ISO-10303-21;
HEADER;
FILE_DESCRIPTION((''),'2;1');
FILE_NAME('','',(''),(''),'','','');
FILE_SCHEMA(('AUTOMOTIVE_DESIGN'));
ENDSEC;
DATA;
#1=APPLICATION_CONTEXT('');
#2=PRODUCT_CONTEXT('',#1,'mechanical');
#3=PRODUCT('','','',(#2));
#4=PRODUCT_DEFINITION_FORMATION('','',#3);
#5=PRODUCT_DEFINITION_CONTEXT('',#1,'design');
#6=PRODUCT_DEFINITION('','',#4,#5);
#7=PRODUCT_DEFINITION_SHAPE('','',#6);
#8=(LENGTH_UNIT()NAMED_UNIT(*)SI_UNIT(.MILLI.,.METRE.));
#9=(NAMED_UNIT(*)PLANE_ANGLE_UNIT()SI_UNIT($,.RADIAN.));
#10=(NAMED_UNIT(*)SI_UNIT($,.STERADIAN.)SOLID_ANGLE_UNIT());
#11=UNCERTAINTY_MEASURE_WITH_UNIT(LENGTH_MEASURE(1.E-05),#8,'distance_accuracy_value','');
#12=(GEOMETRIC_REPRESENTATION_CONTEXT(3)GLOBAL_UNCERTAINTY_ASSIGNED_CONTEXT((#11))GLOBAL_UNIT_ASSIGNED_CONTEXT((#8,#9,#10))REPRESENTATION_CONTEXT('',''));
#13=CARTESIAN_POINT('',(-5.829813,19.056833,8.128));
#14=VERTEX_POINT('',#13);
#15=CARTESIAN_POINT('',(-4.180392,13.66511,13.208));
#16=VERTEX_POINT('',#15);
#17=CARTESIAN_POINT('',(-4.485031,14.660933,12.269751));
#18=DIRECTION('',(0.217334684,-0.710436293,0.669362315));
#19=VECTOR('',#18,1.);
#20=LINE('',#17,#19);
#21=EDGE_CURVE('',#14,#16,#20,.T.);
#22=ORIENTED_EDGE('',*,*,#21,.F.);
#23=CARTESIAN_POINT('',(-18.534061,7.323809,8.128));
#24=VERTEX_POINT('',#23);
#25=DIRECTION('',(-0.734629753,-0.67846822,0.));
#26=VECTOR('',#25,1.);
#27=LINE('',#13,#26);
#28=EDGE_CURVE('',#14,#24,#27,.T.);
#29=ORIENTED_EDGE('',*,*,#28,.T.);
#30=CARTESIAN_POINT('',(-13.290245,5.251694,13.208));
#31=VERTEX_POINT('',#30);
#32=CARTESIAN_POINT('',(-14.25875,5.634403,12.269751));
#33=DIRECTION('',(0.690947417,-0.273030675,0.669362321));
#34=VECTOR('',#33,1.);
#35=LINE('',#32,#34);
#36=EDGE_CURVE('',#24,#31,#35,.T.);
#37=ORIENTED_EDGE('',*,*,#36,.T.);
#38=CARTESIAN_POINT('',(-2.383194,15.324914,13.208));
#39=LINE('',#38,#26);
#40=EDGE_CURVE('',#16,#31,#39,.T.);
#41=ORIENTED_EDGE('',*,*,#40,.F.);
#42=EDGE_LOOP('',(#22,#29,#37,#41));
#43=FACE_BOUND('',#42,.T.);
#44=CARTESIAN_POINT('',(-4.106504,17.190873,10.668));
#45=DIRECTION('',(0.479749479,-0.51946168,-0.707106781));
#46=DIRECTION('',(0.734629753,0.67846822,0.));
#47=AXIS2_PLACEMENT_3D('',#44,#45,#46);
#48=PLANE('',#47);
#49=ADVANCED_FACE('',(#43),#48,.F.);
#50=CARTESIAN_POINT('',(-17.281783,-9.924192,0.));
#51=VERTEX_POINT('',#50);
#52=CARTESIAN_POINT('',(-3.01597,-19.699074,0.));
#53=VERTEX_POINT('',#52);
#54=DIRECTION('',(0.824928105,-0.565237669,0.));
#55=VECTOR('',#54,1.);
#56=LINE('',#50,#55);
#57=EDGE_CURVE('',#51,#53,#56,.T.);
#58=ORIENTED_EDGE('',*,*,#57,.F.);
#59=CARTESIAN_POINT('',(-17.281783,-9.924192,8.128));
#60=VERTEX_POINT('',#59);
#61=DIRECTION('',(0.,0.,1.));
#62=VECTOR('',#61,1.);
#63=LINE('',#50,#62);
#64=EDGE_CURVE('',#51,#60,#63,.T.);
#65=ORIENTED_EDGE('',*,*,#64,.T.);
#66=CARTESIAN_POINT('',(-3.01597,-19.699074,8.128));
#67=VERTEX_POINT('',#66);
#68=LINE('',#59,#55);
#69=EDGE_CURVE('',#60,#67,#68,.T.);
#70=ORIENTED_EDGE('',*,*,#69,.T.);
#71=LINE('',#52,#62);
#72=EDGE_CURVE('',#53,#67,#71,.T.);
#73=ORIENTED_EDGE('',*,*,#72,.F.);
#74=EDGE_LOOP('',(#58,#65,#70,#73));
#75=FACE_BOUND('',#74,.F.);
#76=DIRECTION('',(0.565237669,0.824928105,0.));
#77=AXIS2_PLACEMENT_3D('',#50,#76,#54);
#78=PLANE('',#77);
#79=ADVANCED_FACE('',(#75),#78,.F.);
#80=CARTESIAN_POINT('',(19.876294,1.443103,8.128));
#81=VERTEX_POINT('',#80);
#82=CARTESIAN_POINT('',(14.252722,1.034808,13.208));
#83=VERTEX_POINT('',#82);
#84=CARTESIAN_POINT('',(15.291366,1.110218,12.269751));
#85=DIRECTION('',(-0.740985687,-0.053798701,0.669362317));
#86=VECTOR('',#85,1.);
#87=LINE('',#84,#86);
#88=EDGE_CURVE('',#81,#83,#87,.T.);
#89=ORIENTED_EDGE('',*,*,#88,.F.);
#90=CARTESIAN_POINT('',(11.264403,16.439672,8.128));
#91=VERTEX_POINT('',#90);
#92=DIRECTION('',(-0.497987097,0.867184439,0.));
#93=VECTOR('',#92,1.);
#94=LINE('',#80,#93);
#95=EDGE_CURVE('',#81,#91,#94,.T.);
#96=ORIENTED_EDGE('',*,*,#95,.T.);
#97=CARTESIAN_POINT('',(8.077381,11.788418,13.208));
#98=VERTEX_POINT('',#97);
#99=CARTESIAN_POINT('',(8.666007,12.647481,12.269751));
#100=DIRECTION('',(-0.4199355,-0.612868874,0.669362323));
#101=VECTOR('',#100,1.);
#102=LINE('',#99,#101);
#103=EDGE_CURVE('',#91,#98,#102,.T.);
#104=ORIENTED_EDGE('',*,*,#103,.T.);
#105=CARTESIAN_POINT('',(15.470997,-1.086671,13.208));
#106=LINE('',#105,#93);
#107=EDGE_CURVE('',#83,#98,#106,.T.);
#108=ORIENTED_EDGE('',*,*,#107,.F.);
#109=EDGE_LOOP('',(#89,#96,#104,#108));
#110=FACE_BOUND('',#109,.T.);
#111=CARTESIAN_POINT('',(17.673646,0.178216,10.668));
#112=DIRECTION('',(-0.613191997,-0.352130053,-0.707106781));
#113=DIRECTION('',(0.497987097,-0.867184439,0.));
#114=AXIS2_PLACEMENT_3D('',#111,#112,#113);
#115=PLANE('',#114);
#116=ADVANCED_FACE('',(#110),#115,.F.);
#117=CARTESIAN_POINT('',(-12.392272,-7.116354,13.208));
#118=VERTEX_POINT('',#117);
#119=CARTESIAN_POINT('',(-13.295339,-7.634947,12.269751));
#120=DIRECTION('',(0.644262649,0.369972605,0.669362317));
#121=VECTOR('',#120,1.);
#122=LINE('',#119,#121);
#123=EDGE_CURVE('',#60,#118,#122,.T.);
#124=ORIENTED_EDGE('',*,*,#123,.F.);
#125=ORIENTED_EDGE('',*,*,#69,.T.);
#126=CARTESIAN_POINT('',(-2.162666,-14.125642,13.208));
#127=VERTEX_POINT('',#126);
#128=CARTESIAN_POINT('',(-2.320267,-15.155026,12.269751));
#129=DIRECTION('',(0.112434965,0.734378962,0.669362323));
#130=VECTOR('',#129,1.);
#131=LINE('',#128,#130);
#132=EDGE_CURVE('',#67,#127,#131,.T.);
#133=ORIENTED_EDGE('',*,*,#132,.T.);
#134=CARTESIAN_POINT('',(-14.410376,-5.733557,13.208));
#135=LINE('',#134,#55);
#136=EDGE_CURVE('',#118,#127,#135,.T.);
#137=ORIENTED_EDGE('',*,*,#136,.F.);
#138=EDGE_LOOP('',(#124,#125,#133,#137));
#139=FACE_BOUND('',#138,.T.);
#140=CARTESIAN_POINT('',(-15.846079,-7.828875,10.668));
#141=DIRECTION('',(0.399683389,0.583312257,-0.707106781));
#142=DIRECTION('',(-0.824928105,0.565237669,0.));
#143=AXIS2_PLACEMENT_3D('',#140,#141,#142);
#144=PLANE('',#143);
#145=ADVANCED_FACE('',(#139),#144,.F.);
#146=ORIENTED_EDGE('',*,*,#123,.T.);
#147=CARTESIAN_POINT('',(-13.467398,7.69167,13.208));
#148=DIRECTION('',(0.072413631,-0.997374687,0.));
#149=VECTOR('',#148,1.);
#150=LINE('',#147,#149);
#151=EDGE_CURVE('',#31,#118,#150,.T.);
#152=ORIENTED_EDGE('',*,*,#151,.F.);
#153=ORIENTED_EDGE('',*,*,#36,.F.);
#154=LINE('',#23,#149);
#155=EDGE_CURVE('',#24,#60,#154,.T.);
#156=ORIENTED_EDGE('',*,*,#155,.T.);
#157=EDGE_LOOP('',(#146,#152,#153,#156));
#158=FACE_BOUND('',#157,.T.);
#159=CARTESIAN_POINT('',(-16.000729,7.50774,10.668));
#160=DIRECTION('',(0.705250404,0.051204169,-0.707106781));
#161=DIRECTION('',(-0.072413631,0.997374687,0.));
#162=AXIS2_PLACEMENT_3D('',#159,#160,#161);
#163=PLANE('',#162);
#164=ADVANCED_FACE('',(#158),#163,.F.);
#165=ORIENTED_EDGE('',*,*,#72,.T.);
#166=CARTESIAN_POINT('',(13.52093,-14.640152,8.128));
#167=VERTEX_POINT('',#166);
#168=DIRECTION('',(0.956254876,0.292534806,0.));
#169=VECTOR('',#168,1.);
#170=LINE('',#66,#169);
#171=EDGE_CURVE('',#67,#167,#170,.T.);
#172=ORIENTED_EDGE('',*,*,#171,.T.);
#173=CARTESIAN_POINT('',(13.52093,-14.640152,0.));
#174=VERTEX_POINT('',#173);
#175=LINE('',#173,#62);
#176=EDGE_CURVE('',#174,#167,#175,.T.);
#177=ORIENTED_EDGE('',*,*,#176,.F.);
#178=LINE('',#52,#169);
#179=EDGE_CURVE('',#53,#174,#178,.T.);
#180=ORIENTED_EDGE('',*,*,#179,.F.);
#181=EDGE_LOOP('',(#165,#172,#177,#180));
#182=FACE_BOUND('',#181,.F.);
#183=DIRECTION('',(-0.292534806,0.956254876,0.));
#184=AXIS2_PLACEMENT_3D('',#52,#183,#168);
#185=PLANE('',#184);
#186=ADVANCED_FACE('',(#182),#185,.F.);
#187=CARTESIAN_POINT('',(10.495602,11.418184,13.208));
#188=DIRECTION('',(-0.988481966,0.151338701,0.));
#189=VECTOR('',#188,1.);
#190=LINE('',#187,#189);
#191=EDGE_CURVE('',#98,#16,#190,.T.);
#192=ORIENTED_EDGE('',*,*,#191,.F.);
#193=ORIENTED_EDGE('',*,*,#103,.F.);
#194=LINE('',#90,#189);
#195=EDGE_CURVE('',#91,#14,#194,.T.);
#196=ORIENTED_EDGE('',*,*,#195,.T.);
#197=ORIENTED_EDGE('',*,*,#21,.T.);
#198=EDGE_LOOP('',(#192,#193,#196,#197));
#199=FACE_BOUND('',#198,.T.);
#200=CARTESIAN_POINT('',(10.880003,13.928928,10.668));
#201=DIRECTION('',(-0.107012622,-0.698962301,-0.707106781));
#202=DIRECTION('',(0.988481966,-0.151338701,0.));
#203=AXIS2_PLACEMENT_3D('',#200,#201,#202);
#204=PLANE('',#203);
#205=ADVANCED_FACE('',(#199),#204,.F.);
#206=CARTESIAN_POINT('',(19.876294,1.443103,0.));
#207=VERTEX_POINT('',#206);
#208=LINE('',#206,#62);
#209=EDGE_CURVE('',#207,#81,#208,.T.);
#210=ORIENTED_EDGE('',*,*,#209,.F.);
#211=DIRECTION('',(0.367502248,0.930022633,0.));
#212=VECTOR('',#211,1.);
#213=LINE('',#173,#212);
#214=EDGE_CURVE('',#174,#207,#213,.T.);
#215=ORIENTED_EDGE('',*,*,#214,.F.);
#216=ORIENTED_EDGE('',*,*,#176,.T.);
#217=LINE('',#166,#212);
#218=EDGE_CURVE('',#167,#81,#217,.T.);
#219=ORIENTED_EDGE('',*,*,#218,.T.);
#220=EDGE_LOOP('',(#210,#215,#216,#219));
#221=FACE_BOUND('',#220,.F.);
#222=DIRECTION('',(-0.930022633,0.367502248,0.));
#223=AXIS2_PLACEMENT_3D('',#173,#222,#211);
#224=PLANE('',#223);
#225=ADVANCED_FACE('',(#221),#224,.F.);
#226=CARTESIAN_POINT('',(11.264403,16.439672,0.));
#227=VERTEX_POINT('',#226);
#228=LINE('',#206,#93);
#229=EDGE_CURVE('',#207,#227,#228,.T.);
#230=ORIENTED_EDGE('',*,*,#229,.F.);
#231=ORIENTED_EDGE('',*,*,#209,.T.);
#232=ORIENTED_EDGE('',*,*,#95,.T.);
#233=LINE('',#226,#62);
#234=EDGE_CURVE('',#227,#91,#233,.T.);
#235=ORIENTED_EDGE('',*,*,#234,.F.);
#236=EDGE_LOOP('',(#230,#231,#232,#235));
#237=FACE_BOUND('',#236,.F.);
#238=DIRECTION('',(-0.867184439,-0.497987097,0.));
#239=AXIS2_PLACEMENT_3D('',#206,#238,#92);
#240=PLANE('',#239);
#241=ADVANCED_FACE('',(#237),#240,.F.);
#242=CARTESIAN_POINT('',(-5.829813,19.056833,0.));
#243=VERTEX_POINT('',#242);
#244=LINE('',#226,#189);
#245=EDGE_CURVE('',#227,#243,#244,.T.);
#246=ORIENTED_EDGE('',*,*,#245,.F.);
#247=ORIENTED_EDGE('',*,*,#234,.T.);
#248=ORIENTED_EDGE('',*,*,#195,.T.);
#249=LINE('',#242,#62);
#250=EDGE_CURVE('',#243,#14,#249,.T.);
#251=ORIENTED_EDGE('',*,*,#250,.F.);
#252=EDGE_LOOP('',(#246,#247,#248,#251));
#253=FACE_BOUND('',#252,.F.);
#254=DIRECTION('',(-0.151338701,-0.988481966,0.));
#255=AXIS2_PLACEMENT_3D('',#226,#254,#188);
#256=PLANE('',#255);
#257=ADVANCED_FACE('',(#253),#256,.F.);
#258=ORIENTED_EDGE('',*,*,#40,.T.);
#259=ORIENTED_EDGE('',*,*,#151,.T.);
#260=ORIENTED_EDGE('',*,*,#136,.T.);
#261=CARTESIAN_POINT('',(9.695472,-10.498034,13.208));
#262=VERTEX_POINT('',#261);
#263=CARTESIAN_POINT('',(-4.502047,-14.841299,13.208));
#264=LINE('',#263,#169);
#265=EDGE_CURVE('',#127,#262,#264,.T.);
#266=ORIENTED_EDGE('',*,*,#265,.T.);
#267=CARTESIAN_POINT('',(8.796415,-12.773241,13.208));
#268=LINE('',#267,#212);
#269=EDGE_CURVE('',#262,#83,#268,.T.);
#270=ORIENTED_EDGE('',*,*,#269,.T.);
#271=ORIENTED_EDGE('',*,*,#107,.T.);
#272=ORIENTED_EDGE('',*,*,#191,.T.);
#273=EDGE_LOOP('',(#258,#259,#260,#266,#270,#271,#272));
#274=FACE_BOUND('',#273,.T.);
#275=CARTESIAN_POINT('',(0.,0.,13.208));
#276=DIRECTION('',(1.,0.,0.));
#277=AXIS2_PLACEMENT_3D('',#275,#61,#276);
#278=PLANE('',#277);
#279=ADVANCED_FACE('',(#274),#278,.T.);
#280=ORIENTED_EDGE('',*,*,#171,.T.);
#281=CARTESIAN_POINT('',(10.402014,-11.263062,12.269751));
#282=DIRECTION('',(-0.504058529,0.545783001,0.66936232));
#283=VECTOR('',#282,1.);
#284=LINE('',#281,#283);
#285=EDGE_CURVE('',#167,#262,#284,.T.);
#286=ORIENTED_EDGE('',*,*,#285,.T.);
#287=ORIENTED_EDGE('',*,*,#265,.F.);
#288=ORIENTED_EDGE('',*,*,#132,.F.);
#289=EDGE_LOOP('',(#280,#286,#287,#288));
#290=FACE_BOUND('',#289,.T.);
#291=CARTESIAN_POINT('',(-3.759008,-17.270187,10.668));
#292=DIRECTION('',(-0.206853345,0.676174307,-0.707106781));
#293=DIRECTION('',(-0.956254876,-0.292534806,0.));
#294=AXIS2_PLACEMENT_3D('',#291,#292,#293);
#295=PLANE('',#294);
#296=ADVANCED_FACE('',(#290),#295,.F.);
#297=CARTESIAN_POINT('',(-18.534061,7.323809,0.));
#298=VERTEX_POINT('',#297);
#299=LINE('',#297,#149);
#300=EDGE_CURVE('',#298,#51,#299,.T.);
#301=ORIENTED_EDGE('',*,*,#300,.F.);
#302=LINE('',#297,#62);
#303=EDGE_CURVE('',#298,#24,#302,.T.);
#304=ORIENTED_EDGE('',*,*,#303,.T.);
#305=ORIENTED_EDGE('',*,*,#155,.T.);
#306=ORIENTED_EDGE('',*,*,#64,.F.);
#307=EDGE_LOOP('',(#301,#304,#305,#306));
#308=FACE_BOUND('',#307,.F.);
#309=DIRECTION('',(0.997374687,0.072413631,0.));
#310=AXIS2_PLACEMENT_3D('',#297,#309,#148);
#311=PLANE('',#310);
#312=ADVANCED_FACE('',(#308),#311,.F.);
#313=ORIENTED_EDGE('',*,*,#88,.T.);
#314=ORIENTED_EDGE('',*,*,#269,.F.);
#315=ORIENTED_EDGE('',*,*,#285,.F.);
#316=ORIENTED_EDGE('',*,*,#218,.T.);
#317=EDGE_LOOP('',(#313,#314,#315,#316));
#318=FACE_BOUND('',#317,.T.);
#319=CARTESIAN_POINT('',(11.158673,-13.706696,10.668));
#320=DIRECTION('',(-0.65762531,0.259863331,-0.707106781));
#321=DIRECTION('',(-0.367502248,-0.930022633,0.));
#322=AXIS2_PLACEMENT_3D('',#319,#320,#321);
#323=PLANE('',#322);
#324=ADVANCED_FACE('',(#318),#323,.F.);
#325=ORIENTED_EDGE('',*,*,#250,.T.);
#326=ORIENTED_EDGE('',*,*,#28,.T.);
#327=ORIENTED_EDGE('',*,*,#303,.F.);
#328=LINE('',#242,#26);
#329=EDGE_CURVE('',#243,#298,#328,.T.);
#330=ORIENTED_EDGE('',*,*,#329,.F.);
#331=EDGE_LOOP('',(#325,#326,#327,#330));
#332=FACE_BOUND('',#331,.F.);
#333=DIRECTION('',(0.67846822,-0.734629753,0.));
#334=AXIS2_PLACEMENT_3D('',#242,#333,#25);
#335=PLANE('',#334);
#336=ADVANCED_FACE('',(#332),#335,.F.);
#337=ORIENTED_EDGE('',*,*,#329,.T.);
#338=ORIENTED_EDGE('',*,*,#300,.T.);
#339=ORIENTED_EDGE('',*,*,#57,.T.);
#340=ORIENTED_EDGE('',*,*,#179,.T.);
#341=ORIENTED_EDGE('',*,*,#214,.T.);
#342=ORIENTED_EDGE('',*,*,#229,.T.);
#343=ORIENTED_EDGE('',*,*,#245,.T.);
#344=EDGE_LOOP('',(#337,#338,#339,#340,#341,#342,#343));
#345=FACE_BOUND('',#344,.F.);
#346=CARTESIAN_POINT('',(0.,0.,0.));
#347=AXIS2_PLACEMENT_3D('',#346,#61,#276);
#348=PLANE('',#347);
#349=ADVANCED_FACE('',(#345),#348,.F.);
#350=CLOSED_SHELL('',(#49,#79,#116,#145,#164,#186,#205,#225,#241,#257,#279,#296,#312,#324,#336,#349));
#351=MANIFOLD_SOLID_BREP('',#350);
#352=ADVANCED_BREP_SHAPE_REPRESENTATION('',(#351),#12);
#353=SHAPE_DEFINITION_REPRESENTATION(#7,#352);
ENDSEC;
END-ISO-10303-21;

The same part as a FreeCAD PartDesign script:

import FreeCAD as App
import Part
import Sketcher
Q = App.Units.Quantity


def edges_at(feature, points):
    """Names of the edges that pass closest to the given points."""
    edges = feature.Shape.Edges
    near = lambda p: min(range(len(edges)), key=lambda i: edges[i].distToShape(Part.Vertex(*p))[0])
    return sorted({f"Edge{near(p) + 1}" for p in points})


def add_polygon(sketch, points):
    """Adds a closed chain of lines whose ends are joined by coincident constraints."""
    first, n = sketch.GeometryCount, len(points)
    for a, b in zip(points, points[1:] + points[:1]):
        sketch.addGeometry(Part.LineSegment(App.Vector(*a, 0), App.Vector(*b, 0)), False)
    for i in range(n):
        sketch.addConstraint(Sketcher.Constraint("Coincident", first + i, 2, first + (i + 1) % n, 1))

doc = App.newDocument("Part")
body = doc.addObject("PartDesign::Body", "Body")

sketch1 = body.newObject("Sketcher::SketchObject", "Sketch")
sketch1.AttachmentSupport = (doc.getObject("XY_Plane"), [""])
sketch1.MapMode = "FlatFace"
add_polygon(sketch1, [(19.876294, 1.443103), (11.264403, 16.439672), (-5.829813, 19.056833), (-18.534061, 7.323809), (-17.281783, -9.924192), (-3.01597, -19.699074), (13.52093, -14.640152)])
sketch1.addConstraint([
    Sketcher.Constraint("Equal", 0, 1),
    Sketcher.Constraint("Equal", 1, 2),
    Sketcher.Constraint("Equal", 2, 3),
    Sketcher.Constraint("Equal", 3, 4),
    Sketcher.Constraint("Equal", 4, 5),
    Sketcher.Constraint("Equal", 5, 6),
    Sketcher.Constraint("Distance", 0, Q("17.293402 mm")),
    Sketcher.Constraint("DistanceY", 3, 2, 2, 2, Q("17.248001 mm")),
    Sketcher.Constraint("DistanceX", 4, 2, 5, 2, Q("16.5369 mm")),
    Sketcher.Constraint("DistanceX", 2, 2, -1, 1, Q("18.534061 mm")),
    Sketcher.Constraint("DistanceY", -1, 1, 2, 2, Q("7.323809 mm")),
    Sketcher.Constraint("DistanceX", 4, 2, -1, 1, Q("3.01597 mm")),
    Sketcher.Constraint("DistanceY", 0, 2, 1, 2, Q("2.617161 mm")),
    Sketcher.Constraint("DistanceX", 2, 2, 1, 2, Q("12.704248 mm")),
])
pad1 = body.newObject("PartDesign::Pad", "Pad")
pad1.Profile = sketch1
pad1.Length = Q("0.52 in")
doc.recompute()

chamfer = body.newObject("PartDesign::Chamfer", "Chamfer")
chamfer.Base = (pad1, edges_at(pad1, [
    (-17.908, -1.3, 13.208),
    (-10.149, -14.812, 13.208),
    (5.252, -17.17, 13.208),
    (16.699, -6.599, 13.208),
    (15.57, 8.941, 13.208),
    (2.717, 17.748, 13.208),
    (-12.182, 13.19, 13.208),
]))
chamfer.Size = Q("0.2 in")

doc.recompute()
